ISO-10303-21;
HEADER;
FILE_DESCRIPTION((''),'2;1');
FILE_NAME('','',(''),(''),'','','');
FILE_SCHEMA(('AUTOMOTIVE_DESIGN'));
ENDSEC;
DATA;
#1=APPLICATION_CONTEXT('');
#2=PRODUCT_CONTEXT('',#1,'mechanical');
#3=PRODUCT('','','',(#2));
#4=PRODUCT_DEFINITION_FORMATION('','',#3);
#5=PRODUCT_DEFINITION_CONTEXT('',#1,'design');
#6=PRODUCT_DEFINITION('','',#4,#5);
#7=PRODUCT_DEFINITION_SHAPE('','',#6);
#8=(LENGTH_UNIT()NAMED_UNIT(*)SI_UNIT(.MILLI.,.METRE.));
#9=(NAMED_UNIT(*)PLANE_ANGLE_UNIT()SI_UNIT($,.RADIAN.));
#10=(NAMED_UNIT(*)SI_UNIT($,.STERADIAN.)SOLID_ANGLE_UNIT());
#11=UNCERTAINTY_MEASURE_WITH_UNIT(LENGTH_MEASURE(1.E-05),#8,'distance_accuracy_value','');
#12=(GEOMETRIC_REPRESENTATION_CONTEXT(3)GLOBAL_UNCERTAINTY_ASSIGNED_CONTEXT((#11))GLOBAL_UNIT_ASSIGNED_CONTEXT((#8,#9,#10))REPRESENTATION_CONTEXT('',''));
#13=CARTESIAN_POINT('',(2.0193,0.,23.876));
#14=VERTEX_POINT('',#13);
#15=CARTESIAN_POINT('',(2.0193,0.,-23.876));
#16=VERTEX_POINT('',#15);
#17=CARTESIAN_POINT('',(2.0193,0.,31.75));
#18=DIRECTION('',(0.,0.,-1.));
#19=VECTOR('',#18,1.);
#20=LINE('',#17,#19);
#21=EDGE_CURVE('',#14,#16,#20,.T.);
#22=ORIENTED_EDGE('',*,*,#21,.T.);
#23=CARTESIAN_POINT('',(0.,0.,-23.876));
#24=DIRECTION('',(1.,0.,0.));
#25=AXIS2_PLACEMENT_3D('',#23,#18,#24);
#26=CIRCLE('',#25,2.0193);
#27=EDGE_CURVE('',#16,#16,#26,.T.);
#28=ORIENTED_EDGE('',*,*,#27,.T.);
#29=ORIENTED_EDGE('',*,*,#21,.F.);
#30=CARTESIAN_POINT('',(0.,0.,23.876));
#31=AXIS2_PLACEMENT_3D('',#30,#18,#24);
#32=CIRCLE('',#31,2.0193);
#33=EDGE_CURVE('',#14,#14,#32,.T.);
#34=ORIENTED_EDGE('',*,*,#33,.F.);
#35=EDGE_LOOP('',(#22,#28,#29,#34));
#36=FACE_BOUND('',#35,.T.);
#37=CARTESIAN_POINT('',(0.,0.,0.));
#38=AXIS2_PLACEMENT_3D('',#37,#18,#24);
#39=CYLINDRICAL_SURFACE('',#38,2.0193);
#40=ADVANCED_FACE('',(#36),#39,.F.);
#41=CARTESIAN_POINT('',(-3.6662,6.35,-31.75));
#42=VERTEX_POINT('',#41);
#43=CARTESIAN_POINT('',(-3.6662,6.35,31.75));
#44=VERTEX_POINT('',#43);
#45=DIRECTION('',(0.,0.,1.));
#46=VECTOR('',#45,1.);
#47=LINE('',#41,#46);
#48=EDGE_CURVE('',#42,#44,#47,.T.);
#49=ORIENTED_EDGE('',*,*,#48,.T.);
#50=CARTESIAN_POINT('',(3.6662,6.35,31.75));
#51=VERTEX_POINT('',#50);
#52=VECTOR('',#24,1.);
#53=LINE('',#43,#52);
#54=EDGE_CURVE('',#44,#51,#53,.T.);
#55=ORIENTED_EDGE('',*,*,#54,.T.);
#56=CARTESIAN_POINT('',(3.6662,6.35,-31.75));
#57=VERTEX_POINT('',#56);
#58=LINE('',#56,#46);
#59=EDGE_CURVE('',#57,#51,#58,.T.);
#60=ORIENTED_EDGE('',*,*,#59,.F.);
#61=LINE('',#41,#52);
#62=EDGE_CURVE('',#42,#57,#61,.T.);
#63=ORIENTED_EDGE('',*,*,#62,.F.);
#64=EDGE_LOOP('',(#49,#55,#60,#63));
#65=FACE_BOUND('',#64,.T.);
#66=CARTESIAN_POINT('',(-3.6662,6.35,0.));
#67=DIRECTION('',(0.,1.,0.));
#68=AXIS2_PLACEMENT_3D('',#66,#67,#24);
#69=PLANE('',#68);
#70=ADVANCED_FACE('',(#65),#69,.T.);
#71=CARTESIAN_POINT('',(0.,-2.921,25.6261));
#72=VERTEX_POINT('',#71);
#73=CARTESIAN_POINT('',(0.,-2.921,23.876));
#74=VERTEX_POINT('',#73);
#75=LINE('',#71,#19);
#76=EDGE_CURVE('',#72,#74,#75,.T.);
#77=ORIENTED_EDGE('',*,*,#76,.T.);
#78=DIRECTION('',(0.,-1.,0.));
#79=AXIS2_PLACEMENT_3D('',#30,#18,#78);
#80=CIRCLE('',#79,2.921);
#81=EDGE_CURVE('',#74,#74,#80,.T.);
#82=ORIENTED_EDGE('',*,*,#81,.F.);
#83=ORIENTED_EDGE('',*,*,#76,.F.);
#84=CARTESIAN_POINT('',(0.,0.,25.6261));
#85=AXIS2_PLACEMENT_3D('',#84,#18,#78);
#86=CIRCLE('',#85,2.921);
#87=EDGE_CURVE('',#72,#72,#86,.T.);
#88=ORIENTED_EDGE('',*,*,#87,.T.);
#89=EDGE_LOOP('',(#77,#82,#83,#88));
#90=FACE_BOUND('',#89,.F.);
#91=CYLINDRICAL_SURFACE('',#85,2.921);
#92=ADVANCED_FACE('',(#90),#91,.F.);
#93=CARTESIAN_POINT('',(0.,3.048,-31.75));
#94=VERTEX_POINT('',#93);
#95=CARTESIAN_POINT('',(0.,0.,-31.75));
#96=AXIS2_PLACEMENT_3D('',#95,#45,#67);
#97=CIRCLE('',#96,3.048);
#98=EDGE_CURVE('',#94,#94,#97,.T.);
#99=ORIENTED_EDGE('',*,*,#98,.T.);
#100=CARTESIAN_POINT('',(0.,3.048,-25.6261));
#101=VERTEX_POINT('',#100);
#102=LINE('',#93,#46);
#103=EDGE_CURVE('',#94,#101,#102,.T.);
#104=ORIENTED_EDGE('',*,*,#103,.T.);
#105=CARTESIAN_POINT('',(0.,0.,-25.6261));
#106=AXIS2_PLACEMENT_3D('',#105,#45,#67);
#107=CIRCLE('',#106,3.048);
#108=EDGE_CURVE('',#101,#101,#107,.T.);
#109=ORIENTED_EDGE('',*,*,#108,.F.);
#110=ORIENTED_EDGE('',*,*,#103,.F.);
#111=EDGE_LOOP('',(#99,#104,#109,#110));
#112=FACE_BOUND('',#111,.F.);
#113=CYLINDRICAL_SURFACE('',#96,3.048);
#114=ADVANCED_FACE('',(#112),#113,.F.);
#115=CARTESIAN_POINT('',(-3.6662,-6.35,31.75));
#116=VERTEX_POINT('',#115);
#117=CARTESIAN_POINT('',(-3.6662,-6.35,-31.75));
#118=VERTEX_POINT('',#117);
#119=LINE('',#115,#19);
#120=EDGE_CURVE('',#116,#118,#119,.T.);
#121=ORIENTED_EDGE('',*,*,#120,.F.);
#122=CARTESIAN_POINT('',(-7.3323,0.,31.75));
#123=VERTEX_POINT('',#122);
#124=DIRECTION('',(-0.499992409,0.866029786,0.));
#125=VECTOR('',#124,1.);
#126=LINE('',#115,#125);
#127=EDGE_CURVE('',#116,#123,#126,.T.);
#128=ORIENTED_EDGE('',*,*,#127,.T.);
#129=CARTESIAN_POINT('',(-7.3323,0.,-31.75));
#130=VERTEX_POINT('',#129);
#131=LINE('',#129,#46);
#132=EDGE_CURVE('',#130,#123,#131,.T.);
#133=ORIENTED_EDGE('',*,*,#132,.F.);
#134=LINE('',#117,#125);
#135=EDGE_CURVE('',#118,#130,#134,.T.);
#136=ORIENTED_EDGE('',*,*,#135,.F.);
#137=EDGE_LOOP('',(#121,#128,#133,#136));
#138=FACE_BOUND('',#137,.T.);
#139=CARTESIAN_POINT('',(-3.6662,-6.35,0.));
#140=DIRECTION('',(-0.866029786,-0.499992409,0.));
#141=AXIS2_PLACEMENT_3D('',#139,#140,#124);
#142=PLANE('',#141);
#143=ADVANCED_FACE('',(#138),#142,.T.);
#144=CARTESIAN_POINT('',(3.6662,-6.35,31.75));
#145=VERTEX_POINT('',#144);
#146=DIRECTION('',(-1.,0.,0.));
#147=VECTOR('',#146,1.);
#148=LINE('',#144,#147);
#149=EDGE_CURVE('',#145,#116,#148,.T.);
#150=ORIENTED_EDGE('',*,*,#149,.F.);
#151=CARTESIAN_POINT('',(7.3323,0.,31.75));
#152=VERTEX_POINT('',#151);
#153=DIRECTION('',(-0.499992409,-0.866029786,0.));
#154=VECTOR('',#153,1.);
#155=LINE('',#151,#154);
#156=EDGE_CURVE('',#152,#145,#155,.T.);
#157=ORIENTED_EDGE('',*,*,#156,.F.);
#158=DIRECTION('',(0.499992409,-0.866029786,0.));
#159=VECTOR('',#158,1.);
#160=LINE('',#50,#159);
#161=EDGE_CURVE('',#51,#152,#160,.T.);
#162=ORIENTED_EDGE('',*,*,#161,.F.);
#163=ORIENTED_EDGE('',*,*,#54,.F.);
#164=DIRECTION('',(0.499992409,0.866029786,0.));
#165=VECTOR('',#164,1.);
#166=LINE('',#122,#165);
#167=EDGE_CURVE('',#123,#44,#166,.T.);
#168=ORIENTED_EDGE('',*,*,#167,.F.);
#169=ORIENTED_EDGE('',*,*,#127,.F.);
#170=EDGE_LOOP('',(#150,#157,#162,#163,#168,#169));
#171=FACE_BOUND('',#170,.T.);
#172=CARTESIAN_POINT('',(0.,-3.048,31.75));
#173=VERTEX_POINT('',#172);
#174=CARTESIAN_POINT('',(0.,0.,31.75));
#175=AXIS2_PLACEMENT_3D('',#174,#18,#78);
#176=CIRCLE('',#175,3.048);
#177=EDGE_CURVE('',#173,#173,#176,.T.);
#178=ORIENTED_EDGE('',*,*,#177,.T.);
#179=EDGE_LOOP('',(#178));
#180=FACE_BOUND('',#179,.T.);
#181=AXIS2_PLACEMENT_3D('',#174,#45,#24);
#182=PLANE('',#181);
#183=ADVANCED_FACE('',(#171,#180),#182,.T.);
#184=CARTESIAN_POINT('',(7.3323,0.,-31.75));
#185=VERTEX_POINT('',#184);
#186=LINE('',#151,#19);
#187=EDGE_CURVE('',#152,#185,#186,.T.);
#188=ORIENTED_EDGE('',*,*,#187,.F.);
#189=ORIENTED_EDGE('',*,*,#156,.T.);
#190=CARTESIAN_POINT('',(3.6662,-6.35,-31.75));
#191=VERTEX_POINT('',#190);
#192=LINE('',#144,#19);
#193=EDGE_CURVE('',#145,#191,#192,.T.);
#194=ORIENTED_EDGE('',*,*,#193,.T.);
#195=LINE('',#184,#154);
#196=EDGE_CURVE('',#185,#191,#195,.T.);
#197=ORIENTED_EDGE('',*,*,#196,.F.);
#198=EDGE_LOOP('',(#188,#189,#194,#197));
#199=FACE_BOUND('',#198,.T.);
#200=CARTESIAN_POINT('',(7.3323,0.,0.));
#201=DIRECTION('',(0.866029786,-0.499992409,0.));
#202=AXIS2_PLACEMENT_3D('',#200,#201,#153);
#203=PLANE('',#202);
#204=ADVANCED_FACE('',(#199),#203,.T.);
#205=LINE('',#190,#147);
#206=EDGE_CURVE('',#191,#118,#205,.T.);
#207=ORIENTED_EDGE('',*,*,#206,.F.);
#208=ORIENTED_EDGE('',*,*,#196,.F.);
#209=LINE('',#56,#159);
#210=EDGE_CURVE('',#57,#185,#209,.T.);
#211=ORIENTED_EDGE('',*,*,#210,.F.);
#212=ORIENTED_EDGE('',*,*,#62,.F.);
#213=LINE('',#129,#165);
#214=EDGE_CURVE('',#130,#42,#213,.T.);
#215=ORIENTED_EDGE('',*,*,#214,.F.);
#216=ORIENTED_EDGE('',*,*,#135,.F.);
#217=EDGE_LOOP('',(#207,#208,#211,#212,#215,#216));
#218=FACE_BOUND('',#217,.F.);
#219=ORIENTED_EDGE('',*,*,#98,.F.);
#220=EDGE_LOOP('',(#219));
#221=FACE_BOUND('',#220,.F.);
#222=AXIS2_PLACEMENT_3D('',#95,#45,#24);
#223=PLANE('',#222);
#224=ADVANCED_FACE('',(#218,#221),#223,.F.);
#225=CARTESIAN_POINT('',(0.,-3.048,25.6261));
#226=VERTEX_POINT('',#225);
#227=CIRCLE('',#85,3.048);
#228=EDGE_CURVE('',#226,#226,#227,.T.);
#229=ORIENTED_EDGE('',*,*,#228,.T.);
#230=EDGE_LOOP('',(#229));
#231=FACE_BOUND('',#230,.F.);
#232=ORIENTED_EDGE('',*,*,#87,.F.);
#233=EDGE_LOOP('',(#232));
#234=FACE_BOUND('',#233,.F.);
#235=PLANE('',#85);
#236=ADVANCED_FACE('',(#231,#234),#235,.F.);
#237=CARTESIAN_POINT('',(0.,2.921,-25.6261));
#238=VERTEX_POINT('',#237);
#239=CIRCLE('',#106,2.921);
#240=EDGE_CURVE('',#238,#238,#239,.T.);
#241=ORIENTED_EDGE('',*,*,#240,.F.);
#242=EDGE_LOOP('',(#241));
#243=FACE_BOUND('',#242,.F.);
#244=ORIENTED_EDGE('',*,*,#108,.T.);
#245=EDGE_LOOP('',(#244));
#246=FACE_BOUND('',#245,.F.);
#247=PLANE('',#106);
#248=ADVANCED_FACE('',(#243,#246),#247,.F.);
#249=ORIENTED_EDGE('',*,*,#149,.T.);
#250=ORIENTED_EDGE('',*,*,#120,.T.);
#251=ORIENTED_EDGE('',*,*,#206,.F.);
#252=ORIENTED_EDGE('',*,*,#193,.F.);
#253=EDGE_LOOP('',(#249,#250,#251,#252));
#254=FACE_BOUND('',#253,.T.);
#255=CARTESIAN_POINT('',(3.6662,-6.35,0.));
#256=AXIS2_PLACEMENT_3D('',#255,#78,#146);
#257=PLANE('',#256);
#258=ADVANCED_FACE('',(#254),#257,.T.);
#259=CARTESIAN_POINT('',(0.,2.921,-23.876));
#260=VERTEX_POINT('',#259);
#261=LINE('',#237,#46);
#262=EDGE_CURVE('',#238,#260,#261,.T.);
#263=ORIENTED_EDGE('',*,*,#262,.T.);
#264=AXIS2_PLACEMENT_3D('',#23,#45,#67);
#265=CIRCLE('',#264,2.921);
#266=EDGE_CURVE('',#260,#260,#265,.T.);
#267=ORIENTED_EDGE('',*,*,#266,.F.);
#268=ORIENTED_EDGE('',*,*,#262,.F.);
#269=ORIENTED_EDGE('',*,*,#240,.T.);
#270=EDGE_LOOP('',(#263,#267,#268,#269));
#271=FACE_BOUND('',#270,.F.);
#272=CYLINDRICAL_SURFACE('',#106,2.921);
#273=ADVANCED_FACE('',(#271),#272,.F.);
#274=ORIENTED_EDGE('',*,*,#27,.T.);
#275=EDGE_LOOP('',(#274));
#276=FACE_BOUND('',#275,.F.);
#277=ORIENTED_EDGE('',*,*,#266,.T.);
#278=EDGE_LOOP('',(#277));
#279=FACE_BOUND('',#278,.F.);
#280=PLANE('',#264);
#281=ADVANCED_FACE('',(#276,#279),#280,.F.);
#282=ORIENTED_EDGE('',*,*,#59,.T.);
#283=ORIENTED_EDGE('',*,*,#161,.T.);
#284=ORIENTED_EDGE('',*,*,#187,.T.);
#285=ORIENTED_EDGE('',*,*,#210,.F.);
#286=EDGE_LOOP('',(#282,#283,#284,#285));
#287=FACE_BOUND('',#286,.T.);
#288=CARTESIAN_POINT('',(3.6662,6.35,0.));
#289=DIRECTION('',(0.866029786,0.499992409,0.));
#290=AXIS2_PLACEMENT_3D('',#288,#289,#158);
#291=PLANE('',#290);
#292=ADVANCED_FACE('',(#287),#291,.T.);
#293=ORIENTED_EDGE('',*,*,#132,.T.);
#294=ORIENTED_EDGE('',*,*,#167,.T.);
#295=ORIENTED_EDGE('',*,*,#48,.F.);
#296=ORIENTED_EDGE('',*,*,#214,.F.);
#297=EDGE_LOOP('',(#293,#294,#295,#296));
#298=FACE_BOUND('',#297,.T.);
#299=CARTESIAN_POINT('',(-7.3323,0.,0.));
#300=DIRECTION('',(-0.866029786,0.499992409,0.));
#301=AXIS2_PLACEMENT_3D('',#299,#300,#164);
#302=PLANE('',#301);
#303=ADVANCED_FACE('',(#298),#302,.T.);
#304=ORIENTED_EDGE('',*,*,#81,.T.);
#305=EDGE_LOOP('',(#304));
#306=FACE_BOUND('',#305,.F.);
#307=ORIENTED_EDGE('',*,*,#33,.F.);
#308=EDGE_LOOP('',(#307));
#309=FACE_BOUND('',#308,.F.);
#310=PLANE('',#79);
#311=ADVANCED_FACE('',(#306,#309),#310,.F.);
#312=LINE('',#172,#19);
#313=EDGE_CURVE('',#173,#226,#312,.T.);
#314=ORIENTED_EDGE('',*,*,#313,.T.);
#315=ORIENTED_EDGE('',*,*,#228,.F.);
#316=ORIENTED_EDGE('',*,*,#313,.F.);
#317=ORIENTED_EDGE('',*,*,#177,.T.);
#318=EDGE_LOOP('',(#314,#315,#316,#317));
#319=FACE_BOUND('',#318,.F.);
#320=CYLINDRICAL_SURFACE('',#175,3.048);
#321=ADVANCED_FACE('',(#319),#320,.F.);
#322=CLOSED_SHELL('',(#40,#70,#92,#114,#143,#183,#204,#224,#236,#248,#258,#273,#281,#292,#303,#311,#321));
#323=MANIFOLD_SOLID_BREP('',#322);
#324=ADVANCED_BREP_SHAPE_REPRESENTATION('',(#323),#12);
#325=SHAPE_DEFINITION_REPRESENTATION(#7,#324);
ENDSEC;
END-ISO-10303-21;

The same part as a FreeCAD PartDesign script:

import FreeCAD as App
import Part
import Sketcher

V = App.Vector
Q = App.Units.Quantity

doc = App.newDocument("Part")
body = doc.addObject("PartDesign::Body", "Body")

# Sketch on XY plane
sketch1 = body.newObject("Sketcher::SketchObject", "Sketch")
sketch1.AttachmentSupport = (doc.getObject("XY_Plane"), [""])
sketch1.MapMode = "FlatFace"
sketch1.addGeometry(Part.LineSegment(V(7.3, 0, 0), V(3.7, 6.3, 0)), False)
sketch1.addGeometry(Part.LineSegment(V(3.7, 6.3, 0), V(-3.7, 6.3, 0)), False)
sketch1.addGeometry(Part.LineSegment(V(-3.7, 6.3, 0), V(-7.3, 0, 0)), False)
sketch1.addGeometry(Part.LineSegment(V(-7.3, 0, 0), V(-3.7, -6.3, 0)), False)
sketch1.addGeometry(Part.LineSegment(V(-3.7, -6.3, 0), V(3.7, -6.3, 0)), False)
sketch1.addGeometry(Part.LineSegment(V(3.7, -6.3, 0), V(7.3, 0, 0)), False)
sketch1.addGeometry(Part.Circle(V(0, 0, 0), V(0, 0, 1), 2), False)
sketch1.addConstraint(Sketcher.Constraint("Coincident", 0, 2, 1, 1))
sketch1.addConstraint(Sketcher.Constraint("Coincident", 1, 2, 2, 1))
sketch1.addConstraint(Sketcher.Constraint("Coincident", 2, 2, 3, 1))
sketch1.addConstraint(Sketcher.Constraint("Coincident", 3, 2, 4, 1))
sketch1.addConstraint(Sketcher.Constraint("Coincident", 4, 2, 5, 1))
sketch1.addConstraint(Sketcher.Constraint("Coincident", 5, 2, 0, 1))
sketch1.addConstraint(Sketcher.Constraint("Horizontal", 1))
sketch1.addConstraint(Sketcher.Constraint("Horizontal", 4))
sketch1.addConstraint(Sketcher.Constraint("Coincident", 6, 3, -1, 1))
sketch1.addConstraint(Sketcher.Constraint("Symmetric", 0, 2, 3, 2, -1, 1))
sketch1.addConstraint(Sketcher.Constraint("Symmetric", 2, 2, 5, 2, -1, 1))
sketch1.addConstraint(Sketcher.Constraint("PointOnObject", 2, 2, -1))
sketch1.addConstraint(Sketcher.Constraint("Parallel", 2, 5))
sketch1.addConstraint(Sketcher.Constraint("Vertical", 1, 2, 3, 2))
sketch1.addConstraint(Sketcher.Constraint("Diameter", 6, Q("0.159 in")))
sketch1.addConstraint(Sketcher.Constraint("DistanceY", 3, 2, 1, 2, Q("0.5 in")))
sketch1.addConstraint(Sketcher.Constraint("Angle", 0, Q("119.9995 deg")))
sketch1.addConstraint(Sketcher.Constraint("DistanceX", 2, 2, 0, 2, Q("0.433 in")))
pad1 = body.newObject("PartDesign::Pad", "Pad")
pad1.Profile = sketch1
pad1.Length = Q("2.5 in")
pad1.Midplane = True

# Sketch on XY plane
sketch2 = body.newObject("Sketcher::SketchObject", "Sketch001")
sketch2.AttachmentSupport = (doc.getObject("XY_Plane"), [""])
sketch2.MapMode = "FlatFace"
sketch2.AttachmentOffset = App.Placement(V(0, 0, 1.25 * 25.4), App.Rotation())
sketch2.addGeometry(Part.Circle(V(0, 0, 0), V(0, 0, 1), 2.9), False)
sketch2.addConstraint(Sketcher.Constraint("Coincident", 0, 3, -1, 1))
sketch2.addConstraint(Sketcher.Constraint("Diameter", 0, Q("0.23 in")))
doc.recompute()
hole = body.newObject("PartDesign::Hole", "Hole")
hole.Profile = sketch2
hole.ThreadType = "None"
hole.Diameter = Q("0.23 in")
hole.DepthType = "Dimension"
hole.Depth = Q("0.31 in")
hole.DrillPoint = "Flat"
hole.HoleCutType = "Counterbore"
hole.HoleCutDiameter = Q("0.24 in")
hole.HoleCutDepth = Q("0.2410984 in")

# Sketch on XY plane
sketch3 = body.newObject("Sketcher::SketchObject", "Sketch002")
sketch3.AttachmentSupport = (doc.getObject("XY_Plane"), [""])
sketch3.MapMode = "FlatFace"
sketch3.AttachmentOffset = App.Placement(V(0, 0, -1.25 * 25.4), App.Rotation())
sketch3.addGeometry(Part.Circle(V(0, 0, 0), V(0, 0, 1), 2.9), False)
sketch3.addConstraint(Sketcher.Constraint("Coincident", 0, 3, -1, 1))
sketch3.addConstraint(Sketcher.Constraint("Diameter", 0, Q("0.23 in")))
doc.recompute()
hole2 = body.newObject("PartDesign::Hole", "Hole001")
hole2.Profile = sketch3
hole2.ThreadType = "None"
hole2.Diameter = Q("0.23 in")
hole2.DepthType = "Dimension"
hole2.Depth = Q("0.31 in")
hole2.DrillPoint = "Flat"
hole2.HoleCutType = "Counterbore"
hole2.HoleCutDiameter = Q("0.24 in")
hole2.HoleCutDepth = Q("0.2410984 in")
hole2.Reversed = True

doc.recompute()
